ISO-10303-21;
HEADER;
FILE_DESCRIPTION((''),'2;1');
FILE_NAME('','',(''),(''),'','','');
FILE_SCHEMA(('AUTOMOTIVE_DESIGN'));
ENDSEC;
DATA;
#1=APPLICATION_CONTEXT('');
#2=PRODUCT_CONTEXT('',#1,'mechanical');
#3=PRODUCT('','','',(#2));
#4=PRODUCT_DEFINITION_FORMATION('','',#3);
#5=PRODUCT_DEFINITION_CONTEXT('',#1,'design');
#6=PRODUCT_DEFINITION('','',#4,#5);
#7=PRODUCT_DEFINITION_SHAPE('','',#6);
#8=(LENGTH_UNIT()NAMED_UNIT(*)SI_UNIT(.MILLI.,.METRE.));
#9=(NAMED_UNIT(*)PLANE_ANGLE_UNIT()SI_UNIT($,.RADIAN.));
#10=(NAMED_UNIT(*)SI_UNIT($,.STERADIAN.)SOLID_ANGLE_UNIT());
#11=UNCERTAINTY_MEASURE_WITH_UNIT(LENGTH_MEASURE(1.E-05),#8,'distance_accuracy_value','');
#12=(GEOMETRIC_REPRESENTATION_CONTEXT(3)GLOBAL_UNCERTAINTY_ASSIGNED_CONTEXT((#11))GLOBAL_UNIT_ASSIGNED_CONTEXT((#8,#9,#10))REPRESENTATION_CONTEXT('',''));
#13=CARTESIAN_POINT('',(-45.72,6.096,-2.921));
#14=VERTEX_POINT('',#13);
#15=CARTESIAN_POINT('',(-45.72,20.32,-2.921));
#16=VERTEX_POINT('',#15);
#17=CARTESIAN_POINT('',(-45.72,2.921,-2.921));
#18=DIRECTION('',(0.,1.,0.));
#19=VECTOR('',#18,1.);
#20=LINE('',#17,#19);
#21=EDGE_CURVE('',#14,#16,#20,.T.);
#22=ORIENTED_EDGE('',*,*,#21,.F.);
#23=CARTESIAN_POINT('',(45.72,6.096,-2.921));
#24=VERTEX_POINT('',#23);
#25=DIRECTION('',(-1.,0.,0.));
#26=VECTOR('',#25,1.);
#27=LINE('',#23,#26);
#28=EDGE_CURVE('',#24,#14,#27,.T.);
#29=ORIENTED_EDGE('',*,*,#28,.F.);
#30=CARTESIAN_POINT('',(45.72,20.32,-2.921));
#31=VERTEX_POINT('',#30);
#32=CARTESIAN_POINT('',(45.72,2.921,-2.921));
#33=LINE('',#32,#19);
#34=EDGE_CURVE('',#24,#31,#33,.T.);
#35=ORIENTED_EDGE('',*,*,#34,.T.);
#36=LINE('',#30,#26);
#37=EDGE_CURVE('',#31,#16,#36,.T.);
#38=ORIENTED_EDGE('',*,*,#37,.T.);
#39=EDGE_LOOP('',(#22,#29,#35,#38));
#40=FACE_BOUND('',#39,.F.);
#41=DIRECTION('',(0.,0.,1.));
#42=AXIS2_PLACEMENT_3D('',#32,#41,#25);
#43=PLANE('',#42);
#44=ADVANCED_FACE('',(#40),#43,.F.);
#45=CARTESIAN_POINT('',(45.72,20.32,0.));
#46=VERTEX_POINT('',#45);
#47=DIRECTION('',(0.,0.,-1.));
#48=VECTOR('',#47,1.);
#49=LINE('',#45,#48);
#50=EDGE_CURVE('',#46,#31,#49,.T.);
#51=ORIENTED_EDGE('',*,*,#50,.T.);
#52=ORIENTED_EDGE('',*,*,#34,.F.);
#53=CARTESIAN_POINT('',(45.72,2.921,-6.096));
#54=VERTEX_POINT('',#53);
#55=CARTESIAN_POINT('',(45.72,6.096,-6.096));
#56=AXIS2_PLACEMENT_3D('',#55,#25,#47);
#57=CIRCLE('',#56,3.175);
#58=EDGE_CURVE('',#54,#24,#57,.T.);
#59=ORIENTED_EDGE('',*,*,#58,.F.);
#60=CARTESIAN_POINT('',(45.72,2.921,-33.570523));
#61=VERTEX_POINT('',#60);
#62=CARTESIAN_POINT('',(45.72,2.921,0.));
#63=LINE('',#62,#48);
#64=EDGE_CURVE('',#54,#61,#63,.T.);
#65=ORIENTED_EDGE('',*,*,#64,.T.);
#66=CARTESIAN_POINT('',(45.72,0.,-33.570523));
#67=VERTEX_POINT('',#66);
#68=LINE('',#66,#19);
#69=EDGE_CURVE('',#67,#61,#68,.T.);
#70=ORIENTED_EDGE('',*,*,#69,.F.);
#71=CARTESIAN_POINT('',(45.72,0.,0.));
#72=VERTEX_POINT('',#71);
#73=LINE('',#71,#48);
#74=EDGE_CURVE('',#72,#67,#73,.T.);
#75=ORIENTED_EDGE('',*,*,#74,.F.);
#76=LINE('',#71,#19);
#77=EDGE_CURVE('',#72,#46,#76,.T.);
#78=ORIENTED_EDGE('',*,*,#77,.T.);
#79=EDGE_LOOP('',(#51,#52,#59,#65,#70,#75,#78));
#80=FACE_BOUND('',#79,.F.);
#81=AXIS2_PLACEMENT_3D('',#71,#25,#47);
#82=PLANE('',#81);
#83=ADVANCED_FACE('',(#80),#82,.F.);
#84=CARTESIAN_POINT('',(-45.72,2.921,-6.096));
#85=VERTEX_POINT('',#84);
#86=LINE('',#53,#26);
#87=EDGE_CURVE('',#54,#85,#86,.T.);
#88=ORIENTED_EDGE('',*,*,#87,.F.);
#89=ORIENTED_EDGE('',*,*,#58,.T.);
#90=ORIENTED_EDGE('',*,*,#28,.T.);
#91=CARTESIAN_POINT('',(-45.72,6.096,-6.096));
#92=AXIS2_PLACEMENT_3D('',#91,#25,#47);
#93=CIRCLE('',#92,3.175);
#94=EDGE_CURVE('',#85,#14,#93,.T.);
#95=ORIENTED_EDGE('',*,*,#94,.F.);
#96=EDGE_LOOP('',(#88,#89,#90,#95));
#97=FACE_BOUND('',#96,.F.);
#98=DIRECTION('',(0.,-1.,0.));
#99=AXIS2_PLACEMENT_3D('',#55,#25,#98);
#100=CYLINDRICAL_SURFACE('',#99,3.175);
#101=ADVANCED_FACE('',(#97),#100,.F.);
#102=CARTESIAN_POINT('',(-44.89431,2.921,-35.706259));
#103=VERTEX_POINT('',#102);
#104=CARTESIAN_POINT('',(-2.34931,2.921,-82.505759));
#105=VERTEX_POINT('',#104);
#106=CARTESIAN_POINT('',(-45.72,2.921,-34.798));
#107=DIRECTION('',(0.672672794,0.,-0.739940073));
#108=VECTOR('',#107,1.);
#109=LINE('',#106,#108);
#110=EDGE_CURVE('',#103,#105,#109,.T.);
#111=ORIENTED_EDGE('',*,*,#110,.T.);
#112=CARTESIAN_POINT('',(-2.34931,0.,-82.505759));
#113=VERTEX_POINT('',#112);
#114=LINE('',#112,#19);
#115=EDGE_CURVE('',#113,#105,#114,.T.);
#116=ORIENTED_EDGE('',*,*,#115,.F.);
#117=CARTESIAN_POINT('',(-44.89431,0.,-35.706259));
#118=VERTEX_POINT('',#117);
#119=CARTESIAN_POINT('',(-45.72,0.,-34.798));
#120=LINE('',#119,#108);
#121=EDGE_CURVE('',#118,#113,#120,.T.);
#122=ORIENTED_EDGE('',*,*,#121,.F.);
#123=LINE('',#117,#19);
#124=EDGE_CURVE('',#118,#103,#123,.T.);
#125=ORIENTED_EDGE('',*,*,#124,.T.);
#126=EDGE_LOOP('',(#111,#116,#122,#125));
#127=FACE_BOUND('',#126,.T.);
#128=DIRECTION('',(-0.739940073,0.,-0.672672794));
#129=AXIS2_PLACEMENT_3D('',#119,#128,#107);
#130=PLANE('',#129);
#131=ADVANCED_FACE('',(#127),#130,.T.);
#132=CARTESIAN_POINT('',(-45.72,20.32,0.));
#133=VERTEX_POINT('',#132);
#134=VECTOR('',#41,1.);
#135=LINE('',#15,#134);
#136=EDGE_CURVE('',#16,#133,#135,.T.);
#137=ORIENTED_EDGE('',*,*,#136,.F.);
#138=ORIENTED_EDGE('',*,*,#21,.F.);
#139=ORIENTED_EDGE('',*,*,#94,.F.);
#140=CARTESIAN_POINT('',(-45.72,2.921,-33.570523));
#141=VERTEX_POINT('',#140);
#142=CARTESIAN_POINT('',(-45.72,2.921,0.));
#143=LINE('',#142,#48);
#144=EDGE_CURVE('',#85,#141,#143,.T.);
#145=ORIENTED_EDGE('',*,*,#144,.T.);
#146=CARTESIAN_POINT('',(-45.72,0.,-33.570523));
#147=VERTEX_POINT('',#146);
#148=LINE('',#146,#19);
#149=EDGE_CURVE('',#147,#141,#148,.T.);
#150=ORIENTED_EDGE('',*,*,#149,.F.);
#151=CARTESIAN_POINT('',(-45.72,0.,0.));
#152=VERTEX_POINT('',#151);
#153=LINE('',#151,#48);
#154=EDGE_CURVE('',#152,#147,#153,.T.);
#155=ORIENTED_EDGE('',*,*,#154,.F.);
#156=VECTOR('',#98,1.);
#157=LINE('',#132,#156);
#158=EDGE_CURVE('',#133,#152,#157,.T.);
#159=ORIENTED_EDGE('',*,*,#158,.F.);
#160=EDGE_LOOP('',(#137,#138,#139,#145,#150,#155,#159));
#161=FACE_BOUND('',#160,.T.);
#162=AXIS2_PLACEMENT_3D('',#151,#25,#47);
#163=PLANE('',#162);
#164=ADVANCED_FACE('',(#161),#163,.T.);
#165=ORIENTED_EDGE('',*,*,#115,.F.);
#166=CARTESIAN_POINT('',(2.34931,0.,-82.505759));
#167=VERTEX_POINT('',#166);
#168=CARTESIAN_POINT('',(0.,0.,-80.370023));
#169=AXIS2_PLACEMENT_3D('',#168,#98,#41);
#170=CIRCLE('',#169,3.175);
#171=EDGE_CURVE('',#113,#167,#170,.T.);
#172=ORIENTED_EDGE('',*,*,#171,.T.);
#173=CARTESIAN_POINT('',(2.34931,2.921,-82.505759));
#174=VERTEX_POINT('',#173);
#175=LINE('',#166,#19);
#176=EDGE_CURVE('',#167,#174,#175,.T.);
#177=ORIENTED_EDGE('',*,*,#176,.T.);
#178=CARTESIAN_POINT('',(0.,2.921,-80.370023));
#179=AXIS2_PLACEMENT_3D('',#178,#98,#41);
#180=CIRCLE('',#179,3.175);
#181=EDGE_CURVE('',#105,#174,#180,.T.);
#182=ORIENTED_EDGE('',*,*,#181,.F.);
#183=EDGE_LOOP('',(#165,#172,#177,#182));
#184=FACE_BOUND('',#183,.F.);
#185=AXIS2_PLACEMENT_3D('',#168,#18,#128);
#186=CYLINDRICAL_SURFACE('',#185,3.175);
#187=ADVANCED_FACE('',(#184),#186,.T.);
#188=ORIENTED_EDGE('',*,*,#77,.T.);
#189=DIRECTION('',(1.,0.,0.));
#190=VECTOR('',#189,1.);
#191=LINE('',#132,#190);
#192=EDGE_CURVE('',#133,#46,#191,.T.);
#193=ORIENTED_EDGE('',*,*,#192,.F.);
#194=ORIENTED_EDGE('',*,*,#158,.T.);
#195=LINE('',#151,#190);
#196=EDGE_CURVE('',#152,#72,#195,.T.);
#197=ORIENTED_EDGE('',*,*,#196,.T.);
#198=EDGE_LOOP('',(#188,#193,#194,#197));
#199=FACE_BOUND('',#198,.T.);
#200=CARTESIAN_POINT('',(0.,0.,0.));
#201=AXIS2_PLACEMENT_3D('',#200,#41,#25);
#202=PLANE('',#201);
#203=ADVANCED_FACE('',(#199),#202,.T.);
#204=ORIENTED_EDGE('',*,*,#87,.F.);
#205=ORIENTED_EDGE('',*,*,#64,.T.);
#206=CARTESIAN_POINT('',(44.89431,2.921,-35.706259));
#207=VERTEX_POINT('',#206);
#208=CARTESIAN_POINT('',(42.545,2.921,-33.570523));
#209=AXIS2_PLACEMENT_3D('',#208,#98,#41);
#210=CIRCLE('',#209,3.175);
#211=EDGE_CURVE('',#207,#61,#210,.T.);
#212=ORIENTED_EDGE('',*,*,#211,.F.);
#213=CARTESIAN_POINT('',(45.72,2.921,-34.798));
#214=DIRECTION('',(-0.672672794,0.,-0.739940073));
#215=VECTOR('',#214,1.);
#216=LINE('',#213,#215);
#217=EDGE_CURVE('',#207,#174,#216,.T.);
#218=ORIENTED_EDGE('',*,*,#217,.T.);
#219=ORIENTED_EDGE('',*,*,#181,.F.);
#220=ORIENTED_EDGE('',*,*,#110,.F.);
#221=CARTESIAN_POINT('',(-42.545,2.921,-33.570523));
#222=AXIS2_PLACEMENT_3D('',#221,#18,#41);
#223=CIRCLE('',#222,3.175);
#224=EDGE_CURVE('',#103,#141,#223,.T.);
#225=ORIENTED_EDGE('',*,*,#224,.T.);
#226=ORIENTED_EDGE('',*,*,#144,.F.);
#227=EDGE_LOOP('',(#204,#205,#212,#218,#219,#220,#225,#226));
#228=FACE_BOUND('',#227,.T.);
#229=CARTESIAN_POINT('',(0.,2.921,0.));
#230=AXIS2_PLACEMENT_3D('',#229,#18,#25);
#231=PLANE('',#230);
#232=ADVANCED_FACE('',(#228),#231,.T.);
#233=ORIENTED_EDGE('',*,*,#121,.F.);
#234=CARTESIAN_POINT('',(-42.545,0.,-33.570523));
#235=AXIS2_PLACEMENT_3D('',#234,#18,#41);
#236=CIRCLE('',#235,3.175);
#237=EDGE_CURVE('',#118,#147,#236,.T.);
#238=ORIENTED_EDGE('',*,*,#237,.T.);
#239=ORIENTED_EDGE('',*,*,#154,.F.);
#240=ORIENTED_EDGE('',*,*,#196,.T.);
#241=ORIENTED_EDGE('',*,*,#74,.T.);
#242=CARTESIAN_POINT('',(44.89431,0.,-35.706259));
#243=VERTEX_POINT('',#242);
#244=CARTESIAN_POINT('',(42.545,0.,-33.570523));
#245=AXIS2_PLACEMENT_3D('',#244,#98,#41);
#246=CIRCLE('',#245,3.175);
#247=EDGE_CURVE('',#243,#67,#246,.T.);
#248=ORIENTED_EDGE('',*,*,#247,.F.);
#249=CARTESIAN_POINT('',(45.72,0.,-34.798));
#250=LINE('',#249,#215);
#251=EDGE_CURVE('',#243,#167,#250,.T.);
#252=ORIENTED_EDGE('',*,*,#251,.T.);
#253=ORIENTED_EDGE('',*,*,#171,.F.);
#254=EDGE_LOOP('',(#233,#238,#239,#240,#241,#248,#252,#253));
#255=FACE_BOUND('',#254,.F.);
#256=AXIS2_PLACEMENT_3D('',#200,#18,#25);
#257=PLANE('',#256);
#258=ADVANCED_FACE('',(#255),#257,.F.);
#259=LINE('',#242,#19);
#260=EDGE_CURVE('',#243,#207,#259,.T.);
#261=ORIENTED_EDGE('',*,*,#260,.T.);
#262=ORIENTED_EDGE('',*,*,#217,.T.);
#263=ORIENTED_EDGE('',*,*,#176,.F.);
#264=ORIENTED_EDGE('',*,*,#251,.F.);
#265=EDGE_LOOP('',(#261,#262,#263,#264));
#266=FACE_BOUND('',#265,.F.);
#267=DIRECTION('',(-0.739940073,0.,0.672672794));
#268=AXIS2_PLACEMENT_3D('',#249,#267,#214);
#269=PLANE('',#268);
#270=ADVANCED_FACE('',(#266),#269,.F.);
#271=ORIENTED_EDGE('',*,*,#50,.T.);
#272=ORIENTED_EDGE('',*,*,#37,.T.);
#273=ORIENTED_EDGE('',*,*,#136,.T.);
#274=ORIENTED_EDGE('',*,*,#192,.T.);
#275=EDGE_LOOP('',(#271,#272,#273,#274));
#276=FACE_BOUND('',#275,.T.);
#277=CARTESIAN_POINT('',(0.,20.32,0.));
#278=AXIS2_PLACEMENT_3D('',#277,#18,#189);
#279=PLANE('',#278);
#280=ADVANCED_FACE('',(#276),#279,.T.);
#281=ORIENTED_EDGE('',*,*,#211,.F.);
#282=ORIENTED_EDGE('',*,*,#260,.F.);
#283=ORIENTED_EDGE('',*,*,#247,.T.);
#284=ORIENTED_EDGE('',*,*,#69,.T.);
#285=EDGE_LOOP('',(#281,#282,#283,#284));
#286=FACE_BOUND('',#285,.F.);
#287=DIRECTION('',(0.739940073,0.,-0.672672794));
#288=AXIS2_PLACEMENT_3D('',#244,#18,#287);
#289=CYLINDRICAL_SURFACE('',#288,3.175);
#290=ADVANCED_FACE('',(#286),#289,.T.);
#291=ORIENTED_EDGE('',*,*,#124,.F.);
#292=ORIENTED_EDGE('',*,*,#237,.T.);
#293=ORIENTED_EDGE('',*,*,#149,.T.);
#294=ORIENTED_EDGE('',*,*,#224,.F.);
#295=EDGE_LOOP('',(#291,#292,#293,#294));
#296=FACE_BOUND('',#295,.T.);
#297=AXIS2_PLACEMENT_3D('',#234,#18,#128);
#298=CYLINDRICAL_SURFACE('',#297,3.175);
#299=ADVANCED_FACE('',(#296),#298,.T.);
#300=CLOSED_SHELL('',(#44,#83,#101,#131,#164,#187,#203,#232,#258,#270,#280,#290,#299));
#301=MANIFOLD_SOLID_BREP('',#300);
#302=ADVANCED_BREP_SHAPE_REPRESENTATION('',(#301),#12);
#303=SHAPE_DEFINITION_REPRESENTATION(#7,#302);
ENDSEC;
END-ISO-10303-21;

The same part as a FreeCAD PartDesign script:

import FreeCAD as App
import Part
import Sketcher

V = App.Vector
Q = App.Units.Quantity


def edges_at(feature, points):
    """Names of the edges that pass closest to the given points."""
    edges = feature.Shape.Edges
    near = lambda p: min(range(len(edges)), key=lambda i: edges[i].distToShape(Part.Vertex(*p))[0])
    return sorted({f"Edge{near(p) + 1}" for p in points})


def add_polygon(sketch, points):
    """Adds a closed chain of lines whose ends are joined by coincident constraints."""
    first, n = sketch.GeometryCount, len(points)
    for a, b in zip(points, points[1:] + points[:1]):
        sketch.addGeometry(Part.LineSegment(App.Vector(*a, 0), App.Vector(*b, 0)), False)
    for i in range(n):
        sketch.addConstraint(Sketcher.Constraint("Coincident", first + i, 2, first + (i + 1) % n, 1))

doc = App.newDocument("Part")
params = doc.addObject("Spreadsheet::Sheet", "Params")
for row, (alias, value) in enumerate([
    ("sketch1_height", "1.37 in"),
    ("pad1_length", "0.115 in"),
    ("sketch2_height", "0.115 in"),
    ("sketch2_width", "3.6 in"),
    ("pad2_length", "0.685 in"),
    ("fillet_radius", "0.125 in"),
    ("fillet2_radius", "0.125 in"),
    ("fillet3_radius", "0.125 in"),
], start=1):
    params.set(f"A{row}", alias)
    params.set(f"B{row}", "=" + value)
    params.setAlias(f"B{row}", alias)

body = doc.addObject("PartDesign::Body", "Body")

# Sketch on XZ plane
sketch1 = body.newObject("Sketcher::SketchObject", "Sketch")
sketch1.AttachmentSupport = (doc.getObject("XZ_Plane"), [""])
sketch1.MapMode = "FlatFace"
add_polygon(sketch1, [(-46, 0), (46, 0), (46, -35), (0, -85), (-46, -35)])  # lines 0-4
sketch1.addConstraint(Sketcher.Constraint("Horizontal", 0))
sketch1.addConstraint(Sketcher.Constraint("Vertical", 1))
sketch1.addConstraint(Sketcher.Constraint("Vertical", 4))
sketch1.addConstraint(Sketcher.Constraint("Symmetric", 0, 2, 4, 2, -1, 1))
sketch1.addConstraint(Sketcher.Constraint("PointOnObject", 2, 2, -2))
sketch1.addConstraint(Sketcher.Constraint("Horizontal", 1, 2, 3, 2))
sketch1.addConstraint(Sketcher.Constraint("DistanceY", 1, 2, 1, 1, Q("1.37 in")))
sketch1.addConstraint(Sketcher.Constraint("DistanceX", -1, 1, 0, 2, Q("1.8 in")))
sketch1.addConstraint(Sketcher.Constraint("DistanceY", 2, 2, -1, 1, Q("3.35 in")))
sketch1.setExpression("Constraints[11]", "Params.sketch1_height")
pad1 = body.newObject("PartDesign::Pad", "Pad")
pad1.Profile = sketch1
pad1.setExpression("Length", "Params.pad1_length")
pad1.Reversed = True

# Sketch on XZ plane
sketch2 = body.newObject("Sketcher::SketchObject", "Sketch001")
sketch2.AttachmentSupport = (doc.getObject("XZ_Plane"), [""])
sketch2.MapMode = "FlatFace"
sketch2.AttachmentOffset = App.Placement(V(0, 0, -0.115 * 25.4), App.Rotation())
add_polygon(sketch2, [(-45.7, -2.9), (-45.7, 0), (45.7, 0), (45.7, -2.9)])  # lines 0-3
sketch2.addConstraint(Sketcher.Constraint("Vertical", 0))
sketch2.addConstraint(Sketcher.Constraint("Horizontal", 1))
sketch2.addConstraint(Sketcher.Constraint("Vertical", 2))
sketch2.addConstraint(Sketcher.Constraint("Horizontal", 3))
sketch2.addConstraint(Sketcher.Constraint("Symmetric", 0, 2, 1, 2, -1, 1))
sketch2.addConstraint(Sketcher.Constraint("DistanceY", 0, 1, 0, 2, Q("0.115 in")))
sketch2.addConstraint(Sketcher.Constraint("DistanceX", 1, 1, 1, 2, Q("3.6 in")))
sketch2.setExpression("Constraints[9]", "Params.sketch2_height")
sketch2.setExpression("Constraints[10]", "Params.sketch2_width")
pad2 = body.newObject("PartDesign::Pad", "Pad001")
pad2.Profile = sketch2
pad2.setExpression("Length", "Params.pad2_length")
pad2.Reversed = True
doc.recompute()

fillet = body.newObject("PartDesign::Fillet", "Fillet")
fillet.Base = (pad2, edges_at(pad2, [(0, 1.46, -85.09)]))
fillet.setExpression("Radius", "Params.fillet_radius")
doc.recompute()

fillet2 = body.newObject("PartDesign::Fillet", "Fillet001")
fillet2.Base = (fillet, edges_at(fillet, [(45.72, 1.46, -34.798), (-45.72, 1.46, -34.798)]))
fillet2.setExpression("Radius", "Params.fillet2_radius")
doc.recompute()

fillet3 = body.newObject("PartDesign::Fillet", "Fillet002")
fillet3.Base = (fillet2, edges_at(fillet2, [(0, 2.921, -2.921)]))
fillet3.setExpression("Radius", "Params.fillet3_radius")

doc.recompute()
